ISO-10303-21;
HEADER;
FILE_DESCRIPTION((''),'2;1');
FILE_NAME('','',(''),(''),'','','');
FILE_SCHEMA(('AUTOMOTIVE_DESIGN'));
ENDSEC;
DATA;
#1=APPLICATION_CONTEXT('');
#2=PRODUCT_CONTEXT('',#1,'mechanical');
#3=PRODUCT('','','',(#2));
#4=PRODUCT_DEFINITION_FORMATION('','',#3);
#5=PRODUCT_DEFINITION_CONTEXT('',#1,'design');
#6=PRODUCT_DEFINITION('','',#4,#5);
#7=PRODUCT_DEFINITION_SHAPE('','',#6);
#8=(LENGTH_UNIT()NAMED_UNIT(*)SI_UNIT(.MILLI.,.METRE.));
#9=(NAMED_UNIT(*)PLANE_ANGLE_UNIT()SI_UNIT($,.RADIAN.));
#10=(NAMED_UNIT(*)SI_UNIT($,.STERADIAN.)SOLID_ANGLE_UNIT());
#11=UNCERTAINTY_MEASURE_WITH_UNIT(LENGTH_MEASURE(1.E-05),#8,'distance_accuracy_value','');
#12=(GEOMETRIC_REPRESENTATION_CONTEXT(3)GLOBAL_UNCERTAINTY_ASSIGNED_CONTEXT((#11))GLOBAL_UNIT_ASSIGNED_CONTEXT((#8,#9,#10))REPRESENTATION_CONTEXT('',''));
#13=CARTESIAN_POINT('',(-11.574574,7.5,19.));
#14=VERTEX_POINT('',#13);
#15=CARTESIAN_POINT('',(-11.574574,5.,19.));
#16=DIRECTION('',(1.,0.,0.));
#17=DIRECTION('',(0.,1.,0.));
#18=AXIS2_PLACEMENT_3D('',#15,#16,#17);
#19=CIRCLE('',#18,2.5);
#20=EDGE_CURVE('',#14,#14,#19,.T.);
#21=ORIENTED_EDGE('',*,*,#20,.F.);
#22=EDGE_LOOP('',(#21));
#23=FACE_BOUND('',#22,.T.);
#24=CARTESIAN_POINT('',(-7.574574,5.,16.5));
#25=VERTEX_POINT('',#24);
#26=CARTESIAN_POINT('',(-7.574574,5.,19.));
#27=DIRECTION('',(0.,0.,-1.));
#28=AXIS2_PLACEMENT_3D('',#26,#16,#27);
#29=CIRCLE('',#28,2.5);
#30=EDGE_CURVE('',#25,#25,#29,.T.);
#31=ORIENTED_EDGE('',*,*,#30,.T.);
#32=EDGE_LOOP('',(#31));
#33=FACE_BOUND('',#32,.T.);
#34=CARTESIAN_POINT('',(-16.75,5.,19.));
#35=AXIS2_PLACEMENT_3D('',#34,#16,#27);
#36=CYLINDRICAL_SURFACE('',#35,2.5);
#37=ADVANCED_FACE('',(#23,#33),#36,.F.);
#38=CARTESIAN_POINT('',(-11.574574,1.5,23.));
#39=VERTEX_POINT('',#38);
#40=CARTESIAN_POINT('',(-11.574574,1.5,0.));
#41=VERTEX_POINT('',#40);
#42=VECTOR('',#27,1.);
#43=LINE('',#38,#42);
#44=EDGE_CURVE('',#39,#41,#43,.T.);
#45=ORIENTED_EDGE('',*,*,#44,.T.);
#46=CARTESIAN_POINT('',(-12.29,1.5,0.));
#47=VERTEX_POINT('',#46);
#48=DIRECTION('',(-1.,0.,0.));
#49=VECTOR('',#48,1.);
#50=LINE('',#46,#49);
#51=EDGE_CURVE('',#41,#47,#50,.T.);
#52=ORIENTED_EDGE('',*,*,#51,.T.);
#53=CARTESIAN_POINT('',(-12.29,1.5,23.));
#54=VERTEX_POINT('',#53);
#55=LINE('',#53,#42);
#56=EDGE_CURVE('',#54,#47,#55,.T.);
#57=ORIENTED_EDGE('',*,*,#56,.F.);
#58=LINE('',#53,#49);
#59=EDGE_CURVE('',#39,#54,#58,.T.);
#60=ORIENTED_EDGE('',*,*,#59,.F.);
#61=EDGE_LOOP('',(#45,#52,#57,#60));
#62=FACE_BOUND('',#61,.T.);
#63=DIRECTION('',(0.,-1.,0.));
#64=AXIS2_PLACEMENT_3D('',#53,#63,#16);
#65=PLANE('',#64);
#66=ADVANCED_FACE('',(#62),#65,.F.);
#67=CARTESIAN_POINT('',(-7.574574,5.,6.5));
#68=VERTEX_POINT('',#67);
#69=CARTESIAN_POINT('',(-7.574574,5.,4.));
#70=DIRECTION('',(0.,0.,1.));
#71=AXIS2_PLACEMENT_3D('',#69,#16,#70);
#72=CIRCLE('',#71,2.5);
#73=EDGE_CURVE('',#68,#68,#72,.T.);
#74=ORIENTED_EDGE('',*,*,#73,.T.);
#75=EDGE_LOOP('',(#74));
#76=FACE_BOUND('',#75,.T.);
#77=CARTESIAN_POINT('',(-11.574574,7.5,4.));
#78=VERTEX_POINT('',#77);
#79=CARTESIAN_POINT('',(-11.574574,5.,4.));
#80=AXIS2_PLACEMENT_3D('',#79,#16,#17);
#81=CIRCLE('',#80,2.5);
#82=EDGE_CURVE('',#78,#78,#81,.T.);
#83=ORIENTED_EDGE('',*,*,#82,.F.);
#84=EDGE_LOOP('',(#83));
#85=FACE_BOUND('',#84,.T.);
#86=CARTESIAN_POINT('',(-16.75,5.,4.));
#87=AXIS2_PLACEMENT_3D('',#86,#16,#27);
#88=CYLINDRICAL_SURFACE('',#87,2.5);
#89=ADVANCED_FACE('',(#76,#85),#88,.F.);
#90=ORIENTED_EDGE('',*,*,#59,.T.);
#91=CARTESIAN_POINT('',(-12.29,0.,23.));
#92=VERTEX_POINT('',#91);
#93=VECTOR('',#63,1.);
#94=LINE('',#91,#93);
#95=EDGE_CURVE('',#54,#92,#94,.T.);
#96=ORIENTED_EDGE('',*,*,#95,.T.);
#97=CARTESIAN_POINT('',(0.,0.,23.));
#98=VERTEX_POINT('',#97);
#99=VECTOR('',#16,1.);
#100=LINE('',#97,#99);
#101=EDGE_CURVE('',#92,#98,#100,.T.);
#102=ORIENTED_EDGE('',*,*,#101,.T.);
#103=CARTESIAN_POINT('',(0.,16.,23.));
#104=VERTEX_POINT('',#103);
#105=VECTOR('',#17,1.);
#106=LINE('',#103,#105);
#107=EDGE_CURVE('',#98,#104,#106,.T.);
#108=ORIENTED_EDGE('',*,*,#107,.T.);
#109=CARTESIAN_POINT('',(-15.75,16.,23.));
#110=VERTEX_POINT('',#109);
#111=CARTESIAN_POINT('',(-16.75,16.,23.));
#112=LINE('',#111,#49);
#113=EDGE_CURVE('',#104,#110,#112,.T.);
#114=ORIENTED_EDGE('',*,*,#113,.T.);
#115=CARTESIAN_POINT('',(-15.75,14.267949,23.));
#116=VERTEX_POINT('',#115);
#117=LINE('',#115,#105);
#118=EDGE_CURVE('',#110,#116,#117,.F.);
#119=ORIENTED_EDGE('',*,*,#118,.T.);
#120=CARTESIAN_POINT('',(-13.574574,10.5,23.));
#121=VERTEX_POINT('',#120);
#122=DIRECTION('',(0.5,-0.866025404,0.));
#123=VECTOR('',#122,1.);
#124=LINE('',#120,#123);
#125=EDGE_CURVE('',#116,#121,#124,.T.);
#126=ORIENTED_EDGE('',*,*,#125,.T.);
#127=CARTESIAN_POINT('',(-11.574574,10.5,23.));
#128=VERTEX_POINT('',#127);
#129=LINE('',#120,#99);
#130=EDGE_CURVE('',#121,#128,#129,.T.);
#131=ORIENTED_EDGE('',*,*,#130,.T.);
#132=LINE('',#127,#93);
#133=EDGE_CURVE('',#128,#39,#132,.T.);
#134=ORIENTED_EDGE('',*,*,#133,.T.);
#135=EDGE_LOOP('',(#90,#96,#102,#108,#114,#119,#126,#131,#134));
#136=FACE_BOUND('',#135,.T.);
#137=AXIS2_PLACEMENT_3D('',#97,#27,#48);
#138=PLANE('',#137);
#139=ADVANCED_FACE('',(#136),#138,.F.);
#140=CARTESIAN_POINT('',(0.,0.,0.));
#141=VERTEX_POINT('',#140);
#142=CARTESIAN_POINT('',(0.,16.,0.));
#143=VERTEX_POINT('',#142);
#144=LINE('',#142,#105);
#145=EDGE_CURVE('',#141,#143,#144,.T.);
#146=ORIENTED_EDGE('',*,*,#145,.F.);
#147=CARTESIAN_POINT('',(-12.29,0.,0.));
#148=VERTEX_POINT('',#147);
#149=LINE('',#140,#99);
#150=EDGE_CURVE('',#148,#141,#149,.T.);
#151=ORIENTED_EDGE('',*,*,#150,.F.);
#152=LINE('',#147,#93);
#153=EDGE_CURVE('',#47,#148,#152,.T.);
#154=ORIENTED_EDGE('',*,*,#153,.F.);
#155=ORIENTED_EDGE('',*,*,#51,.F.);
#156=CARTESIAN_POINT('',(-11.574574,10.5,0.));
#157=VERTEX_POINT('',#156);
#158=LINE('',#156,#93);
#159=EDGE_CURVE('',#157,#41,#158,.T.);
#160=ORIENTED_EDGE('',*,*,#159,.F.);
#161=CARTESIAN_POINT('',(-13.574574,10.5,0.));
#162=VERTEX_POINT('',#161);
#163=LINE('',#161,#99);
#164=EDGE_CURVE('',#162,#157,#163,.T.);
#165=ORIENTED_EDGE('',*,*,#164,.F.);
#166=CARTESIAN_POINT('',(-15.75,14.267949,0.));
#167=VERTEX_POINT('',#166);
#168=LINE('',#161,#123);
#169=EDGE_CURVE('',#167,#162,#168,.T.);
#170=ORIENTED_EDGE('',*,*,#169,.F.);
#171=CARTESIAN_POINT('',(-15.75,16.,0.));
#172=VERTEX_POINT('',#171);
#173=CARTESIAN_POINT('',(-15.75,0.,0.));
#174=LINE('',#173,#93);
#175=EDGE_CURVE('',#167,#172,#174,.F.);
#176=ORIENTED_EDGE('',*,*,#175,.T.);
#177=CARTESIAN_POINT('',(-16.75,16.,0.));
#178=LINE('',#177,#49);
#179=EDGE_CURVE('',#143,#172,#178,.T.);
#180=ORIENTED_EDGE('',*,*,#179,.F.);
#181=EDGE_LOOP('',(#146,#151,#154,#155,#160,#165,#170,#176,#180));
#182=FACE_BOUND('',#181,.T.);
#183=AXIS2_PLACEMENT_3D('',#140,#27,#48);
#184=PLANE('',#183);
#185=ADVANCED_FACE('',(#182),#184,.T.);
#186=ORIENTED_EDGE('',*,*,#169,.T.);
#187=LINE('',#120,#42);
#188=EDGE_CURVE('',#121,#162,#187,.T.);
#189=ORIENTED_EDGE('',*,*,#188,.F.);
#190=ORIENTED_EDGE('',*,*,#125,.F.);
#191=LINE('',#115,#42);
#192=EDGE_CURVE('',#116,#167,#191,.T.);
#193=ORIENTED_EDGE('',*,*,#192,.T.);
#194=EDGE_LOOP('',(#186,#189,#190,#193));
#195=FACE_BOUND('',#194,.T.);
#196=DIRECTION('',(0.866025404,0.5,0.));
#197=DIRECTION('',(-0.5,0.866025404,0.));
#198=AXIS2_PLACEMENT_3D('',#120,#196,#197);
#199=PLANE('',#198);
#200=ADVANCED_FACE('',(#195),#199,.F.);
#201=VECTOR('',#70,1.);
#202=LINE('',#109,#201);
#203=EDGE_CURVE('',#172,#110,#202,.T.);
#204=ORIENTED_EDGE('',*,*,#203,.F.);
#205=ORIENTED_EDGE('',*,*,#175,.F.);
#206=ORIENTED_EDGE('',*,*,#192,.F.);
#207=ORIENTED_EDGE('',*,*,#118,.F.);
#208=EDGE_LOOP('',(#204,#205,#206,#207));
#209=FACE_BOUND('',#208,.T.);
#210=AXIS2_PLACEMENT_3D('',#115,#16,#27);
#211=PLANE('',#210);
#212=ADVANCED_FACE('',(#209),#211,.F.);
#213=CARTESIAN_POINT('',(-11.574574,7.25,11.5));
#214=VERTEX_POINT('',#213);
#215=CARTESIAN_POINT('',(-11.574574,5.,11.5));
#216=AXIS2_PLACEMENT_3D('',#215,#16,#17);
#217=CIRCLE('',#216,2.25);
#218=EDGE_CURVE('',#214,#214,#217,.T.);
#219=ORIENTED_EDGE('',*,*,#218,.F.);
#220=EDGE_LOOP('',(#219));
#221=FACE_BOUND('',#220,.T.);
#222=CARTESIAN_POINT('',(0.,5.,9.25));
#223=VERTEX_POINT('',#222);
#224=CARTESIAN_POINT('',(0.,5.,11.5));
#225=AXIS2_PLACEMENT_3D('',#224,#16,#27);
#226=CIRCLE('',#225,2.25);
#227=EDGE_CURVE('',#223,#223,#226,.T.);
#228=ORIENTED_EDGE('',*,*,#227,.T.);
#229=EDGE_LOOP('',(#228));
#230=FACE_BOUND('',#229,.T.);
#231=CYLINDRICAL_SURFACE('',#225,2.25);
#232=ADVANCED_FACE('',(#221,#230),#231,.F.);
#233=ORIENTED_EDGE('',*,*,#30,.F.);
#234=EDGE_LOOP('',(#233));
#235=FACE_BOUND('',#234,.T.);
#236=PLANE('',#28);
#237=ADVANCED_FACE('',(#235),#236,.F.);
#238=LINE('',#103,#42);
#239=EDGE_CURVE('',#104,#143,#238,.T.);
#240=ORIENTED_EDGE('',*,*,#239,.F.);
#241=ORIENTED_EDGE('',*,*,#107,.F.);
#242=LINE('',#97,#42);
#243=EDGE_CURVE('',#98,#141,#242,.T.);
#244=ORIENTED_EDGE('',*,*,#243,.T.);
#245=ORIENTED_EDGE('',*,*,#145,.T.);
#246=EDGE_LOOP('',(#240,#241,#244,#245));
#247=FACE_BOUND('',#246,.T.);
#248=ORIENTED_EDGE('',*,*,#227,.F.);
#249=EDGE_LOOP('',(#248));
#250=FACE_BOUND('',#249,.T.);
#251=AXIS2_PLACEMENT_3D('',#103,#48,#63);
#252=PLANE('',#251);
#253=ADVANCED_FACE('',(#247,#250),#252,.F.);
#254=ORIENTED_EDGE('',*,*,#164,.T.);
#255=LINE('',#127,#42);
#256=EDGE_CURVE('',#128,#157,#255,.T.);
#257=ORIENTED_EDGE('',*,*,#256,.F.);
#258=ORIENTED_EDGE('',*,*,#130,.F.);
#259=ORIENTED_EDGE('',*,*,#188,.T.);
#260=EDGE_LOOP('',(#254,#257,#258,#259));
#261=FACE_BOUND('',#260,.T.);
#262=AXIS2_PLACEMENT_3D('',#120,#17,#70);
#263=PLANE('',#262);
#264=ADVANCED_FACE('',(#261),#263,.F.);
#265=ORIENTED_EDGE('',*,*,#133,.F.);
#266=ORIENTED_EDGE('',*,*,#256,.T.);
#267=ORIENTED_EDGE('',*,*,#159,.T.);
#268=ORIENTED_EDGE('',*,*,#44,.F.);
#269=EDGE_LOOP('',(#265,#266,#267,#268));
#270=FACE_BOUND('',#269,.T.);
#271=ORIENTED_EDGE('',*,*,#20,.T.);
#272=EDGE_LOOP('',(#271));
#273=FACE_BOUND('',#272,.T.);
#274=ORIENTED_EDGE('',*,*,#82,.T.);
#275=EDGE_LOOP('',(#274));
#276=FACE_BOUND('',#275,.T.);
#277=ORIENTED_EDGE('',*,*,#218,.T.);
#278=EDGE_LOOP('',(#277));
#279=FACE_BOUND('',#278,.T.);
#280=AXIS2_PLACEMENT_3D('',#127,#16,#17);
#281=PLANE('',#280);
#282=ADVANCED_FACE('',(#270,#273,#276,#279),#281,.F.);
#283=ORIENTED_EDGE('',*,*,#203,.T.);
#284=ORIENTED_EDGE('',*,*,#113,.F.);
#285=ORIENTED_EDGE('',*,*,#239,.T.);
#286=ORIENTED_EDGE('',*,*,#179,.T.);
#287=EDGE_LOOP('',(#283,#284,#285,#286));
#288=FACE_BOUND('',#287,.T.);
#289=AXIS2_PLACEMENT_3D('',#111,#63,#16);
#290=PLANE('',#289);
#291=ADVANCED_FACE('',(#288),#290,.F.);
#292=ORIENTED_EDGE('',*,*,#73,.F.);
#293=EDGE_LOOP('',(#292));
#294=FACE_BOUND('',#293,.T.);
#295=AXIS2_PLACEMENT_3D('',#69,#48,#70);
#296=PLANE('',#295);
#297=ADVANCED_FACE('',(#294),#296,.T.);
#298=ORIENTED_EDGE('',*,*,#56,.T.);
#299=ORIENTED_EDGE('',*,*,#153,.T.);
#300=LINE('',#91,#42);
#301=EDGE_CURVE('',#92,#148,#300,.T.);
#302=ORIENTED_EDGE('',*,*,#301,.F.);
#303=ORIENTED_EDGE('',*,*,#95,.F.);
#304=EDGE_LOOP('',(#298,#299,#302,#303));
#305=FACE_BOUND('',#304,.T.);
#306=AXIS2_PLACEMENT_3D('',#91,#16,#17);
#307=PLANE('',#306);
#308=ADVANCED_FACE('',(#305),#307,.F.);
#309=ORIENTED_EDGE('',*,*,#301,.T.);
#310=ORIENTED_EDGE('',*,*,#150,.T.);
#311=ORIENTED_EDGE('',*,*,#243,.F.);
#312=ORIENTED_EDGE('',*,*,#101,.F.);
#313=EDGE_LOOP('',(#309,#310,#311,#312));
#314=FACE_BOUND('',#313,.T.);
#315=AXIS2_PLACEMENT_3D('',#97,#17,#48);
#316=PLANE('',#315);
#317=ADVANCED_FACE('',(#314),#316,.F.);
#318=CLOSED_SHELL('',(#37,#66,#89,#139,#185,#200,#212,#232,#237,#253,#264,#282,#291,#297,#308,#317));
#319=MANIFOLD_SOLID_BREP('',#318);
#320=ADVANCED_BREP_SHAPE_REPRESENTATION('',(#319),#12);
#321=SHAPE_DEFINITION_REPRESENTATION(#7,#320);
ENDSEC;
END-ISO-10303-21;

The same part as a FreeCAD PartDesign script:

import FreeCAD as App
import Part
import Sketcher
from FreeCAD import Vector
Q = App.Units.Quantity


def edges_at(feature, points):
    """Names of the edges that pass closest to the given points."""
    edges = feature.Shape.Edges
    near = lambda p: min(range(len(edges)), key=lambda i: edges[i].distToShape(Part.Vertex(*p))[0])
    return sorted({f"Edge{near(p) + 1}" for p in points})

doc = App.newDocument("Part")
body = doc.addObject("PartDesign::Body", "Body")

sketch1 = body.newObject("Sketcher::SketchObject", "Sketch")
sketch1.AttachmentSupport = (doc.getObject("XY_Plane"), [""])
sketch1.MapMode = "FlatFace"
sketch1.addGeometry([
    Part.LineSegment(Vector(-12.3, 0, 0), Vector(0, 0, 0)),
    Part.LineSegment(Vector(0, 0, 0), Vector(0, 16, 0)),
    Part.LineSegment(Vector(0, 16, 0), Vector(-16.8, 16, 0)),
    Part.LineSegment(Vector(-16.8, 16, 0), Vector(-13.6, 10.5, 0)),
    Part.LineSegment(Vector(-13.6, 10.5, 0), Vector(-11.6, 10.5, 0)),
    Part.LineSegment(Vector(-11.6, 10.5, 0), Vector(-11.6, 1.5, 0)),
    Part.LineSegment(Vector(-11.6, 1.5, 0), Vector(-12.3, 1.5, 0)),
    Part.LineSegment(Vector(-12.3, 1.5, 0), Vector(-12.3, 0, 0)),
], False)
sketch1.addConstraint([
    Sketcher.Constraint("Coincident", 0, 2, 1, 1),
    Sketcher.Constraint("Coincident", 1, 2, 2, 1),
    Sketcher.Constraint("Coincident", 2, 2, 3, 1),
    Sketcher.Constraint("Coincident", 3, 2, 4, 1),
    Sketcher.Constraint("Coincident", 4, 2, 5, 1),
    Sketcher.Constraint("Coincident", 5, 2, 6, 1),
    Sketcher.Constraint("Coincident", 6, 2, 7, 1),
    Sketcher.Constraint("Coincident", 7, 2, 0, 1),
    Sketcher.Constraint("Horizontal", 0),
    Sketcher.Constraint("Vertical", 1),
    Sketcher.Constraint("Horizontal", 2),
    Sketcher.Constraint("Horizontal", 4),
    Sketcher.Constraint("Vertical", 5),
    Sketcher.Constraint("Horizontal", 6),
    Sketcher.Constraint("Vertical", 7),
    Sketcher.Constraint("Coincident", 0, 2, -1, 1),
    Sketcher.Constraint("DistanceX", 4, 1, 4, 2, Q("2 mm")),
    Sketcher.Constraint("DistanceY", 1, 1, 1, 2, Q("16 mm")),
    Sketcher.Constraint("DistanceY", 5, 2, 5, 1, Q("9 mm")),
    Sketcher.Constraint("Angle", 3, Q("-60 deg")),
    Sketcher.Constraint("DistanceY", 7, 2, 7, 1, Q("1.5 mm")),
    Sketcher.Constraint("DistanceX", 0, 1, 0, 2, Q("12.29 mm")),
    Sketcher.Constraint("DistanceX", 2, 2, 2, 1, Q("16.75 mm")),
])
pad1 = body.newObject("PartDesign::Pad", "Pad")
pad1.Profile = sketch1
pad1.Length = 23

sketch2 = body.newObject("Sketcher::SketchObject", "Sketch001")
sketch2.AttachmentSupport = (doc.getObject("YZ_Plane"), [""])
sketch2.MapMode = "FlatFace"
sketch2.AttachmentOffset = App.Placement(Vector(0, 0, -11.574574), App.Rotation())
sketch2.addGeometry([
    Part.Circle(Vector(5, 19, 0), Vector(0, 0, 1), 2.5),
    Part.Circle(Vector(5, 4, 0), Vector(0, 0, 1), 2.5),
], False)
sketch2.addConstraint([
    Sketcher.Constraint("Equal", 0, 1),
    Sketcher.Constraint("Vertical", 0, 3, 1, 3),
    Sketcher.Constraint("Diameter", 0, Q("5 mm")),
    Sketcher.Constraint("DistanceX", -1, 1, 0, 3, Q("5 mm")),
    Sketcher.Constraint("DistanceY", -1, 1, 0, 3, Q("19 mm")),
    Sketcher.Constraint("DistanceY", -1, 1, 1, 3, Q("4 mm")),
])
pocket1 = body.newObject("PartDesign::Pocket", "Pocket")
pocket1.Profile = sketch2
pocket1.Type = "TwoLengths"
pocket1.Length = 4
pocket1.Length2 = 6.175426
pocket1.Reversed = True

sketch3 = body.newObject("Sketcher::SketchObject", "Sketch002")
sketch3.AttachmentSupport = (doc.getObject("YZ_Plane"), [""])
sketch3.MapMode = "FlatFace"
sketch3.addGeometry(Part.Circle(Vector(5, 11.5, 0), Vector(0, 0, 1), 2.2), False)
sketch3.addConstraint([
    Sketcher.Constraint("Diameter", 0, Q("4.5 mm")),
    Sketcher.Constraint("DistanceX", -1, 1, 0, 3, Q("5 mm")),
    Sketcher.Constraint("DistanceY", -1, 1, 0, 3, Q("11.5 mm")),
])
doc.recompute()
hole = body.newObject("PartDesign::Hole", "Hole")
hole.Profile = sketch3
hole.ThreadType = "None"
hole.Diameter = 4.5
hole.DepthType = "ThroughAll"
doc.recompute()

chamfer = body.newObject("PartDesign::Chamfer", "Chamfer")
chamfer.Base = (hole, edges_at(hole, [(-16.75, 16, 11.5)]))
chamfer.ChamferType = "Two distances"
chamfer.Size = 1
chamfer.Size2 = 2

doc.recompute()
